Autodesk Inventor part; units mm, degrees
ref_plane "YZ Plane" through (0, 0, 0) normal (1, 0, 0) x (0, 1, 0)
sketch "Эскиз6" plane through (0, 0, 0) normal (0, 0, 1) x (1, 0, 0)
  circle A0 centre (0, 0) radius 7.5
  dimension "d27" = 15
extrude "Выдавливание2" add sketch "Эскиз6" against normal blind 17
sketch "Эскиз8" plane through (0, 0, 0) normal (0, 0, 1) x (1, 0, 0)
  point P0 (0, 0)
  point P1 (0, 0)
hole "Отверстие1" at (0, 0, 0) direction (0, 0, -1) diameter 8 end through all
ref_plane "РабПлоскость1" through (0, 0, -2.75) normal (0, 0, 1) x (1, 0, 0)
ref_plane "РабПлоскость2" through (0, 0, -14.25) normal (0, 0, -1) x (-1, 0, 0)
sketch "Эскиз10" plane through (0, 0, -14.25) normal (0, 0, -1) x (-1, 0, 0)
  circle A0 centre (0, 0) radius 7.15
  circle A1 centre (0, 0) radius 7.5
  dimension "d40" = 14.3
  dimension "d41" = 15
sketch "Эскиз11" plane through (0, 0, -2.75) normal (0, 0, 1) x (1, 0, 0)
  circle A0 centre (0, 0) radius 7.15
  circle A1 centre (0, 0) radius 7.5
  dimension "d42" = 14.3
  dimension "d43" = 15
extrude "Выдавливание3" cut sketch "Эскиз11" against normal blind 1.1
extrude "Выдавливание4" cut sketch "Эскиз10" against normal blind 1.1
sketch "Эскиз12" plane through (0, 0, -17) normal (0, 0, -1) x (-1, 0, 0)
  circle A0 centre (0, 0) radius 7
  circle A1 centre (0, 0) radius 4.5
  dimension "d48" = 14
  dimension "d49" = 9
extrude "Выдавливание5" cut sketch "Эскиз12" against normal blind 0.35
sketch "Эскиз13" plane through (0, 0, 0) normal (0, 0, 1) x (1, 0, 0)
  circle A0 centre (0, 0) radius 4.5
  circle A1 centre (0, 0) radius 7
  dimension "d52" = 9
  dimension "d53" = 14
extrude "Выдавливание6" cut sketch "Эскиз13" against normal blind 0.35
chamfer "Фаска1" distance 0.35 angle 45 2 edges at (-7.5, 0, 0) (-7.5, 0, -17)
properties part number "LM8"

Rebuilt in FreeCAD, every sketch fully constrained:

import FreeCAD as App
import Part
import Sketcher

V = App.Vector
Q = App.Units.Quantity


def edges_at(feature, points):
    """Names of the edges that pass closest to the given points."""
    edges = feature.Shape.Edges
    near = lambda p: min(range(len(edges)), key=lambda i: edges[i].distToShape(Part.Vertex(*p))[0])
    return sorted({f"Edge{near(p) + 1}" for p in points})

doc = App.newDocument("Part")
body = doc.addObject("PartDesign::Body", "Body")

sketch1 = doc.addObject("Sketcher::SketchObject", "Sketch")
body.addObject(sketch1)
sketch1.AttachmentSupport = (doc.XY_Plane, [""])
sketch1.MapMode = "FlatFace"
sketch1.addGeometry(Part.Circle(V(0, 0, 0), V(0, 0, 1), 8), False)
sketch1.addConstraint(Sketcher.Constraint("Coincident", 0, 3, -1, 1))
sketch1.addConstraint(Sketcher.Constraint("Diameter", 0, Q("15 mm")))
pad1 = doc.addObject("PartDesign::Pad", "Pad")
body.addObject(pad1)
pad1.Profile = sketch1
pad1.Length = 17
pad1.Reversed = True

sketch2 = doc.addObject("Sketcher::SketchObject", "Sketch001")
body.addObject(sketch2)
sketch2.AttachmentSupport = (doc.XY_Plane, [""])
sketch2.MapMode = "FlatFace"
sketch2.addGeometry(Part.Circle(V(0, 0, 0), V(0, 0, 1), 4), False)
sketch2.addConstraint(Sketcher.Constraint("Coincident", 0, 3, -1, 1))
sketch2.addConstraint(Sketcher.Constraint("Diameter", 0, Q("8 mm")))
doc.recompute()
hole = doc.addObject("PartDesign::Hole", "Hole")
body.addObject(hole)
hole.Profile = sketch2
hole.ThreadType = "None"
hole.Diameter = 8
hole.DepthType = "ThroughAll"

sketch3 = doc.addObject("Sketcher::SketchObject", "Sketch002")
body.addObject(sketch3)
sketch3.AttachmentSupport = (doc.XY_Plane, [""])
sketch3.MapMode = "FlatFace"
sketch3.AttachmentOffset = App.Placement(V(0, 0, -2.75), App.Rotation())
sketch3.addGeometry(Part.Circle(V(0, 0, 0), V(0, 0, 1), 8), False)
sketch3.addGeometry(Part.Circle(V(0, 0, 0), V(0, 0, 1), 7), False)
sketch3.addConstraint(Sketcher.Constraint("Coincident", 0, 3, -1, 1))
sketch3.addConstraint(Sketcher.Constraint("Coincident", 1, 3, -1, 1))
sketch3.addConstraint(Sketcher.Constraint("Diameter", 0, Q("15 mm")))
sketch3.addConstraint(Sketcher.Constraint("Diameter", 1, Q("14.3 mm")))
pocket1 = doc.addObject("PartDesign::Pocket", "Pocket")
body.addObject(pocket1)
pocket1.Profile = sketch3
pocket1.Length = 1.1

sketch4 = doc.addObject("Sketcher::SketchObject", "Sketch003")
body.addObject(sketch4)
sketch4.AttachmentSupport = (doc.XY_Plane, [""])
sketch4.MapMode = "FlatFace"
sketch4.AttachmentOffset = App.Placement(V(0, 0, -14.25), App.Rotation())
sketch4.addGeometry(Part.Circle(V(0, 0, 0), V(0, 0, 1), 8), False)
sketch4.addGeometry(Part.Circle(V(0, 0, 0), V(0, 0, 1), 7), False)
sketch4.addConstraint(Sketcher.Constraint("Coincident", 0, 3, -1, 1))
sketch4.addConstraint(Sketcher.Constraint("Coincident", 1, 3, -1, 1))
sketch4.addConstraint(Sketcher.Constraint("Diameter", 0, Q("15 mm")))
sketch4.addConstraint(Sketcher.Constraint("Diameter", 1, Q("14.3 mm")))
pocket2 = doc.addObject("PartDesign::Pocket", "Pocket001")
body.addObject(pocket2)
pocket2.Profile = sketch4
pocket2.Length = 1.1
pocket2.Reversed = True

sketch5 = doc.addObject("Sketcher::SketchObject", "Sketch004")
body.addObject(sketch5)
sketch5.AttachmentSupport = (doc.XY_Plane, [""])
sketch5.MapMode = "FlatFace"
sketch5.AttachmentOffset = App.Placement(V(0, 0, -17), App.Rotation())
sketch5.addGeometry(Part.Circle(V(0, 0, 0), V(0, 0, 1), 7), False)
sketch5.addGeometry(Part.Circle(V(0, 0, 0), V(0, 0, 1), 4.5), False)
sketch5.addConstraint(Sketcher.Constraint("Coincident", 0, 3, -1, 1))
sketch5.addConstraint(Sketcher.Constraint("Coincident", 1, 3, -1, 1))
sketch5.addConstraint(Sketcher.Constraint("Diameter", 0, Q("14 mm")))
sketch5.addConstraint(Sketcher.Constraint("Diameter", 1, Q("9 mm")))
pocket3 = doc.addObject("PartDesign::Pocket", "Pocket002")
body.addObject(pocket3)
pocket3.Profile = sketch5
pocket3.Length = 0.35
pocket3.Reversed = True

sketch6 = doc.addObject("Sketcher::SketchObject", "Sketch005")
body.addObject(sketch6)
sketch6.AttachmentSupport = (doc.XY_Plane, [""])
sketch6.MapMode = "FlatFace"
sketch6.addGeometry(Part.Circle(V(0, 0, 0), V(0, 0, 1), 7), False)
sketch6.addGeometry(Part.Circle(V(0, 0, 0), V(0, 0, 1), 4.5), False)
sketch6.addConstraint(Sketcher.Constraint("Coincident", 0, 3, -1, 1))
sketch6.addConstraint(Sketcher.Constraint("Coincident", 1, 3, -1, 1))
sketch6.addConstraint(Sketcher.Constraint("Diameter", 0, Q("14 mm")))
sketch6.addConstraint(Sketcher.Constraint("Diameter", 1, Q("9 mm")))
pocket4 = doc.addObject("PartDesign::Pocket", "Pocket003")
body.addObject(pocket4)
pocket4.Profile = sketch6
pocket4.Length = 0.35
doc.recompute()

chamfer = doc.addObject("PartDesign::Chamfer", "Chamfer")
body.addObject(chamfer)
chamfer.Base = (pocket4, edges_at(pocket4, [(-7.5, 0, 0), (-7.5, 0, -17)]))
chamfer.Size = 0.35

doc.recompute()
